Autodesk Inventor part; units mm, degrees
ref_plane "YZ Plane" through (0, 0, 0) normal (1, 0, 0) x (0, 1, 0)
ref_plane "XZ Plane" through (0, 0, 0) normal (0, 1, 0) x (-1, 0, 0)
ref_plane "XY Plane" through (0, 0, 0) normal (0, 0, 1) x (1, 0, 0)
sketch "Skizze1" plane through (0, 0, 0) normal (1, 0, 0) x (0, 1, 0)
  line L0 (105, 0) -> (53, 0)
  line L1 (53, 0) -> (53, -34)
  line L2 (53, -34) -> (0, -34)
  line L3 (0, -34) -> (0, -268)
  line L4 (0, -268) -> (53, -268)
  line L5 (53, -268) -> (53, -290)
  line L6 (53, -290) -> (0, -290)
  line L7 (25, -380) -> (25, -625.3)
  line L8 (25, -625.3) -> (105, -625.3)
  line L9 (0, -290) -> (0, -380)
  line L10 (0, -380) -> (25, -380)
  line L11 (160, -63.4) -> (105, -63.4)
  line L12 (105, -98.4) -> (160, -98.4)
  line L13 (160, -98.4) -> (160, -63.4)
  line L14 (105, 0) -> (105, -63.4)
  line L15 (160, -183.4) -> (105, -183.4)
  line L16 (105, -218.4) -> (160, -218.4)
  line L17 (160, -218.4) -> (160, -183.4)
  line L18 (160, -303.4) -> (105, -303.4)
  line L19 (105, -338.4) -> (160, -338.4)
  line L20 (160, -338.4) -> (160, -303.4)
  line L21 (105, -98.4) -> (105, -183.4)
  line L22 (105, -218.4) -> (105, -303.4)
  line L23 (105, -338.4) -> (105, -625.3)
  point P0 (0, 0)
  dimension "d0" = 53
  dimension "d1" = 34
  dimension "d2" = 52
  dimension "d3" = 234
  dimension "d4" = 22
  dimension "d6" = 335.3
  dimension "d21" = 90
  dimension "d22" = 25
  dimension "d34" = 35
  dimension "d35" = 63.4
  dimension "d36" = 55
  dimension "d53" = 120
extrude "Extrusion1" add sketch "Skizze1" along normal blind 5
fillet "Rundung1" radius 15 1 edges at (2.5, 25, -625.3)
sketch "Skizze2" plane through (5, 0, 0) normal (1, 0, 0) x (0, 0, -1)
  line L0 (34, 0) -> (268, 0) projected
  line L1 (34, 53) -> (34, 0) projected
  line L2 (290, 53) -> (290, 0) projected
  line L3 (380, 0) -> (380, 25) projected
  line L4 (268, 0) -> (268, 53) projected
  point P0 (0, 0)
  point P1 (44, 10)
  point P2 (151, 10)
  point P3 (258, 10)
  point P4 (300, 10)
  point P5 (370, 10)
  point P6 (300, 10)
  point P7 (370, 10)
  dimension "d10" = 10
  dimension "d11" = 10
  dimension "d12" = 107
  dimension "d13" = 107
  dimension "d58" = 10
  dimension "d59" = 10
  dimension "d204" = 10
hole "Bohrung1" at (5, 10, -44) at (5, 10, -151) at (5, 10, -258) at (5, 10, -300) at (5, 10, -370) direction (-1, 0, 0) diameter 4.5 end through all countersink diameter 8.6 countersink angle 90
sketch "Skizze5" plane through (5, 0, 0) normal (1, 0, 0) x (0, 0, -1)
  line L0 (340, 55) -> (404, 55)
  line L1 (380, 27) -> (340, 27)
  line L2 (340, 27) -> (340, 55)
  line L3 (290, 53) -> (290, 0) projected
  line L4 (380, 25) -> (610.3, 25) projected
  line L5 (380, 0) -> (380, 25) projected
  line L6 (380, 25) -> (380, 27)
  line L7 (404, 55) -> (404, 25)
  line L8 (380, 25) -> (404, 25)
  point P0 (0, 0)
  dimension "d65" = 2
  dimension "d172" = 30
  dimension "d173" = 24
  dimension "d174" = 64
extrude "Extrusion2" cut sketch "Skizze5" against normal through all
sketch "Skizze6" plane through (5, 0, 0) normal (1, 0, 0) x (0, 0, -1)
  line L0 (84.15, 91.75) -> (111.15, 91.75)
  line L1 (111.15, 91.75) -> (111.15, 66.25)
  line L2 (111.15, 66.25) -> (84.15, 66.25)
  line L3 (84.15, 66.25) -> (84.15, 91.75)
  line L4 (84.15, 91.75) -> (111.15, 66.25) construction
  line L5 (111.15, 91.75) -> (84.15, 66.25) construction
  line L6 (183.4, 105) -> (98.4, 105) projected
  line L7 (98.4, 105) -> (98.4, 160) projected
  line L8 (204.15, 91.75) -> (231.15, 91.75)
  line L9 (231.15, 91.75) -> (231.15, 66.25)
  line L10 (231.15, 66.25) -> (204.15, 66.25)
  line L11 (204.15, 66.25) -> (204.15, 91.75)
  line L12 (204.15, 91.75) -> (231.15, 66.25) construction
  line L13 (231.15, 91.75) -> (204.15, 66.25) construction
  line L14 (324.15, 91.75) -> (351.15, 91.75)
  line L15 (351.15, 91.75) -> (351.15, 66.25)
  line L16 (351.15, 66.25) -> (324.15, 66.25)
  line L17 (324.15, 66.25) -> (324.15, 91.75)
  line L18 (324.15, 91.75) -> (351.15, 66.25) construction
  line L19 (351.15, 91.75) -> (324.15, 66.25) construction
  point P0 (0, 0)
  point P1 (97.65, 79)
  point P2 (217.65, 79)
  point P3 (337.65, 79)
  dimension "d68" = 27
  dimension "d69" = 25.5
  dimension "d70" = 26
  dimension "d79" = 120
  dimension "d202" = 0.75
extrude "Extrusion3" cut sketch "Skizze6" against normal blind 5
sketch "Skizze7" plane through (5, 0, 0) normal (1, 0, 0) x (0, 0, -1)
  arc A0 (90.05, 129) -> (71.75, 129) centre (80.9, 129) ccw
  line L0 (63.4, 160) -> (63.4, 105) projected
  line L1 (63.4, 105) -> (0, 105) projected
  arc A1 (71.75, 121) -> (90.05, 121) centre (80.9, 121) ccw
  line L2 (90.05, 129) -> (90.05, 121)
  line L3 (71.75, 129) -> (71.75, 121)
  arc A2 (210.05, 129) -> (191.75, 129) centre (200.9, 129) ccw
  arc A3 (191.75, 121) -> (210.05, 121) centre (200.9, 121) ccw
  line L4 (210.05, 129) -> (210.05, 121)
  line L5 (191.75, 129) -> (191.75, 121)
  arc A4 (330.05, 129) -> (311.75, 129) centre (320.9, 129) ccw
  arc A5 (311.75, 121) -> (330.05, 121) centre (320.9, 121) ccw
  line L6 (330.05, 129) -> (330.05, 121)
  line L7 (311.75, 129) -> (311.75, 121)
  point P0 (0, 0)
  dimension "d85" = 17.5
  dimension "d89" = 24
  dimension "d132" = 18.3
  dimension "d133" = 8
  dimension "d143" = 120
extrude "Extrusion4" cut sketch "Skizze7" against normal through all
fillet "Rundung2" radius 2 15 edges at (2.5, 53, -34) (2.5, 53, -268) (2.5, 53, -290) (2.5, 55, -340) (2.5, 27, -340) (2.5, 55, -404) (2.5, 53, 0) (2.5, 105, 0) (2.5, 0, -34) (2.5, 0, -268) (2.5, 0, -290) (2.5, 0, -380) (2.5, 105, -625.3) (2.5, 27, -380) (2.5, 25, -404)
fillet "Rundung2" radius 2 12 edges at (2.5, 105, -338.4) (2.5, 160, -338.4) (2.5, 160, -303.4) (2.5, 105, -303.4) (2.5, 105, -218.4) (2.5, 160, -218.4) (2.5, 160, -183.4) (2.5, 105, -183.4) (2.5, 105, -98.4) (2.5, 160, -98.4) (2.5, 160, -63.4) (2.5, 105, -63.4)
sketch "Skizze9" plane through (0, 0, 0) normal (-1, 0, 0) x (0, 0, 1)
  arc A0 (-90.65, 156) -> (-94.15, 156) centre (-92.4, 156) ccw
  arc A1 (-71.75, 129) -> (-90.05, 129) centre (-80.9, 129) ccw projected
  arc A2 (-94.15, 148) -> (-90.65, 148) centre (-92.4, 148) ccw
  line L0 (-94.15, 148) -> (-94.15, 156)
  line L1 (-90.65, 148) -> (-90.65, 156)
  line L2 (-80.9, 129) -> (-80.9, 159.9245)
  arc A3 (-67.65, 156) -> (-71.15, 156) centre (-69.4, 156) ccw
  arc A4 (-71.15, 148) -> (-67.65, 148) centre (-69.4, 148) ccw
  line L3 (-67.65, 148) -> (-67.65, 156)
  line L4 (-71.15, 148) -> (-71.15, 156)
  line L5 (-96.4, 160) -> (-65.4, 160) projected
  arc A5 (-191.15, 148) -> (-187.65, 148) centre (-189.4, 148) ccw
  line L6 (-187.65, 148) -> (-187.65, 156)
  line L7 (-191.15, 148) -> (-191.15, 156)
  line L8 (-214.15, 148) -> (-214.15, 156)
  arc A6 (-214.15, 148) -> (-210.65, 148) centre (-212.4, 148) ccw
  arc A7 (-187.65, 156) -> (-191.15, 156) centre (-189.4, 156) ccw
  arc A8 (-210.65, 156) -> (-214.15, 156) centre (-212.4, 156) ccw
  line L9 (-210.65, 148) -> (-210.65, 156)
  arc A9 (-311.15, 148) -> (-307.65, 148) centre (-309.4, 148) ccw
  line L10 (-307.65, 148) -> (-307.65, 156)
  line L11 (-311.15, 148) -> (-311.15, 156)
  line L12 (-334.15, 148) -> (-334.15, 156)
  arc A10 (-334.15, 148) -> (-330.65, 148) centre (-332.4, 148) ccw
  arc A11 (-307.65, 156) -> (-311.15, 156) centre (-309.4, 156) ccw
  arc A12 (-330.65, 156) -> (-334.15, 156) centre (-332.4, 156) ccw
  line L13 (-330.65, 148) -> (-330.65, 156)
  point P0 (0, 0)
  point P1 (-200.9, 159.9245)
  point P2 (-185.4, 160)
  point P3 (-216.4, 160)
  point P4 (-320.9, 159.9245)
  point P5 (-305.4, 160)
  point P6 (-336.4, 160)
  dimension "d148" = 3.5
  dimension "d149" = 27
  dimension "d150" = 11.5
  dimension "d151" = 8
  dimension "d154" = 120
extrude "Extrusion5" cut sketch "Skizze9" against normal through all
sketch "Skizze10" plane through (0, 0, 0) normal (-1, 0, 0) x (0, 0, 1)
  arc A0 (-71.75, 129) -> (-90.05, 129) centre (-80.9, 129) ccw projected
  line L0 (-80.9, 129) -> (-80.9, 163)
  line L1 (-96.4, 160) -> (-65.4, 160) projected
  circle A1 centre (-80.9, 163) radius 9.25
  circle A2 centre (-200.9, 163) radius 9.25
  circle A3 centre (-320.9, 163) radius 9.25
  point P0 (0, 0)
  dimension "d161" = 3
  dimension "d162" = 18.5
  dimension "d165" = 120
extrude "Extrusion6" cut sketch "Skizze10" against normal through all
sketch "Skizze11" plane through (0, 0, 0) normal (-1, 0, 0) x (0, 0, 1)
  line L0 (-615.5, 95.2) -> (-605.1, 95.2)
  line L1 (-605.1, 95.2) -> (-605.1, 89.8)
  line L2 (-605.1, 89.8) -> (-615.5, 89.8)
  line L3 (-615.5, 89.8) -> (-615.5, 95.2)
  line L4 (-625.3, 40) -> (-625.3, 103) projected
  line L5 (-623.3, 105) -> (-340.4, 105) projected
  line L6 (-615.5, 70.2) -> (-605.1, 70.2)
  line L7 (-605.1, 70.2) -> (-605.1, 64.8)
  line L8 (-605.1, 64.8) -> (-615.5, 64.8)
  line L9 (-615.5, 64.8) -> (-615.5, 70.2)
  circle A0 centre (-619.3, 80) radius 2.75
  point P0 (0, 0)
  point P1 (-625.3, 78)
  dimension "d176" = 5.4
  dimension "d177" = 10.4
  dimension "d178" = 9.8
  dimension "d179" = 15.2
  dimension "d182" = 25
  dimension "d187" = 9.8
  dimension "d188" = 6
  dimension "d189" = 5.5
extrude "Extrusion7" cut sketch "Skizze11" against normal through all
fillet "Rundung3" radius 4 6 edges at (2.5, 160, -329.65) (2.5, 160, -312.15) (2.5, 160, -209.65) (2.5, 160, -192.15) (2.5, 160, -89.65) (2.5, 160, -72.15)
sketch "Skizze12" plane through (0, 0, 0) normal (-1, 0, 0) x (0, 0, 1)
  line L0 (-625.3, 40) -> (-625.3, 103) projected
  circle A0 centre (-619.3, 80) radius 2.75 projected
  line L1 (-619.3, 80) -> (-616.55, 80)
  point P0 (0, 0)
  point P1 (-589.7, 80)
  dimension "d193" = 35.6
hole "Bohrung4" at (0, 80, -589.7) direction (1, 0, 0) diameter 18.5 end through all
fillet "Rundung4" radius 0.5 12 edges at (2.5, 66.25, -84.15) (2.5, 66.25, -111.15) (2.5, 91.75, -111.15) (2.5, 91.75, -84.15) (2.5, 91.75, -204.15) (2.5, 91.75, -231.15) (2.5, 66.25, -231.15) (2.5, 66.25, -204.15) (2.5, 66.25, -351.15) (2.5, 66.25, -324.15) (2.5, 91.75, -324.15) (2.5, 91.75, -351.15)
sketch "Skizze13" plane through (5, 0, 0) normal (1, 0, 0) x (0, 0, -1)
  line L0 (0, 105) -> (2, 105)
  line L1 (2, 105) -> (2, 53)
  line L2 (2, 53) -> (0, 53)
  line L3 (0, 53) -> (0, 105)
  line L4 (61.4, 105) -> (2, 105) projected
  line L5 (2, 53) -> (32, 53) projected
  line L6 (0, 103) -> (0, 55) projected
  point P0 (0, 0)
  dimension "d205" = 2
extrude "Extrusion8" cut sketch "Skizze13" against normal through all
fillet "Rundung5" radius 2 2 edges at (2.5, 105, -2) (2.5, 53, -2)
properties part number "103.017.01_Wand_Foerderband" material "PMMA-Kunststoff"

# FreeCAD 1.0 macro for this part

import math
import FreeCAD as App
import Part
import Sketcher
from FreeCAD import Vector
Q = App.Units.Quantity


def edges_at(feature, points):
    """Names of the edges that pass closest to the given points."""
    edges = feature.Shape.Edges
    near = lambda p: min(range(len(edges)), key=lambda i: edges[i].distToShape(Part.Vertex(*p))[0])
    return sorted({f"Edge{near(p) + 1}" for p in points})


def add_polygon(sketch, points):
    """Adds a closed chain of lines whose ends are joined by coincident constraints."""
    first, n = sketch.GeometryCount, len(points)
    for a, b in zip(points, points[1:] + points[:1]):
        sketch.addGeometry(Part.LineSegment(App.Vector(*a, 0), App.Vector(*b, 0)), False)
    for i in range(n):
        sketch.addConstraint(Sketcher.Constraint("Coincident", first + i, 2, first + (i + 1) % n, 1))

doc = App.newDocument("Part")
body = doc.addObject("PartDesign::Body", "Body")

sketch1 = body.newObject("Sketcher::SketchObject", "Sketch")
sketch1.AttachmentSupport = (doc.getObject("YZ_Plane"), [""])
sketch1.MapMode = "FlatFace"
add_polygon(sketch1, [(105, -63), (105, 0), (53, 0), (53, -34), (0, -34), (0, -268), (53, -268), (53, -290), (0, -290), (0, -380), (25, -380), (25, -625), (105, -625), (105, -338), (160, -338), (160, -303), (105, -303), (105, -218), (160, -218), (160, -183), (105, -183), (105, -98), (160, -98), (160, -63)])
sketch1.addConstraint(Sketcher.Constraint("Vertical", 0))
sketch1.addConstraint(Sketcher.Constraint("Horizontal", 1))
sketch1.addConstraint(Sketcher.Constraint("Vertical", 2))
sketch1.addConstraint(Sketcher.Constraint("Horizontal", 3))
sketch1.addConstraint(Sketcher.Constraint("Vertical", 4))
sketch1.addConstraint(Sketcher.Constraint("Horizontal", 5))
sketch1.addConstraint(Sketcher.Constraint("Vertical", 6))
sketch1.addConstraint(Sketcher.Constraint("Horizontal", 7))
sketch1.addConstraint(Sketcher.Constraint("Vertical", 8))
sketch1.addConstraint(Sketcher.Constraint("Horizontal", 9))
sketch1.addConstraint(Sketcher.Constraint("Vertical", 10))
sketch1.addConstraint(Sketcher.Constraint("Horizontal", 11))
sketch1.addConstraint(Sketcher.Constraint("Vertical", 12))
sketch1.addConstraint(Sketcher.Constraint("Horizontal", 13))
sketch1.addConstraint(Sketcher.Constraint("Vertical", 14))
sketch1.addConstraint(Sketcher.Constraint("Horizontal", 15))
sketch1.addConstraint(Sketcher.Constraint("Vertical", 16))
sketch1.addConstraint(Sketcher.Constraint("Horizontal", 17))
sketch1.addConstraint(Sketcher.Constraint("Vertical", 18))
sketch1.addConstraint(Sketcher.Constraint("Horizontal", 19))
sketch1.addConstraint(Sketcher.Constraint("Vertical", 20))
sketch1.addConstraint(Sketcher.Constraint("Horizontal", 21))
sketch1.addConstraint(Sketcher.Constraint("Vertical", 22))
sketch1.addConstraint(Sketcher.Constraint("Horizontal", 23))
sketch1.addConstraint(Sketcher.Constraint("PointOnObject", 0, 2, -1))
sketch1.addConstraint(Sketcher.Constraint("PointOnObject", 3, 2, -2))
sketch1.addConstraint(Sketcher.Constraint("PointOnObject", 7, 2, -2))
sketch1.addConstraint(Sketcher.Constraint("Vertical", 2, 2, 5, 2))
sketch1.addConstraint(Sketcher.Constraint("Vertical", 0, 2, 11, 2))
sketch1.addConstraint(Sketcher.Constraint("Vertical", 12, 2, 15, 2))
sketch1.addConstraint(Sketcher.Constraint("Vertical", 14, 2, 17, 2))
sketch1.addConstraint(Sketcher.Constraint("Vertical", 16, 2, 19, 2))
sketch1.addConstraint(Sketcher.Constraint("Vertical", 18, 2, 21, 2))
sketch1.addConstraint(Sketcher.Constraint("Equal", 14, 18))
sketch1.addConstraint(Sketcher.Constraint("Equal", 16, 20))
sketch1.addConstraint(Sketcher.Constraint("Equal", 18, 22))
sketch1.addConstraint(Sketcher.Constraint("DistanceX", 1, 2, 1, 1, Q("52 mm")))
sketch1.addConstraint(Sketcher.Constraint("DistanceX", 3, 2, 3, 1, Q("53 mm")))
sketch1.addConstraint(Sketcher.Constraint("DistanceX", 9, 1, 9, 2, Q("25 mm")))
sketch1.addConstraint(Sketcher.Constraint("DistanceX", 13, 1, 13, 2, Q("55 mm")))
sketch1.addConstraint(Sketcher.Constraint("DistanceY", 2, 2, 2, 1, Q("34 mm")))
sketch1.addConstraint(Sketcher.Constraint("DistanceY", 4, 2, 4, 1, Q("234 mm")))
sketch1.addConstraint(Sketcher.Constraint("DistanceY", 6, 2, 6, 1, Q("22 mm")))
sketch1.addConstraint(Sketcher.Constraint("DistanceY", 8, 2, 8, 1, Q("90 mm")))
sketch1.addConstraint(Sketcher.Constraint("DistanceY", 14, 1, 14, 2, Q("35 mm")))
sketch1.addConstraint(Sketcher.Constraint("DistanceY", 0, 1, 0, 2, Q("63.4 mm")))
sketch1.addConstraint(Sketcher.Constraint("DistanceY", 13, 2, 17, 2, Q("120 mm")))
sketch1.addConstraint(Sketcher.Constraint("DistanceY", 10, 2, 7, 2, Q("335.3 mm")))
pad1 = body.newObject("PartDesign::Pad", "Pad")
pad1.Profile = sketch1
pad1.Length = 5
doc.recompute()

fillet = body.newObject("PartDesign::Fillet", "Fillet")
fillet.Base = (pad1, edges_at(pad1, [(2.5, 25, -625.3)]))
fillet.Radius = 15

sketch2 = body.newObject("Sketcher::SketchObject", "Sketch001")
sketch2.AttachmentSupport = (doc.getObject("YZ_Plane"), [""])
sketch2.MapMode = "FlatFace"
sketch2.AttachmentOffset = App.Placement(Vector(0, 0, 5), App.Rotation())
sketch2.addGeometry(Part.Circle(Vector(10, -44, 0), Vector(0, 0, 1), 2.2), False)
sketch2.addGeometry(Part.Circle(Vector(10, -151, 0), Vector(0, 0, 1), 2.2), False)
sketch2.addGeometry(Part.Circle(Vector(10, -258, 0), Vector(0, 0, 1), 2.2), False)
sketch2.addGeometry(Part.Circle(Vector(10, -300, 0), Vector(0, 0, 1), 2.2), False)
sketch2.addGeometry(Part.Circle(Vector(10, -370, 0), Vector(0, 0, 1), 2.2), False)
sketch2.addConstraint(Sketcher.Constraint("Equal", 0, 1))
sketch2.addConstraint(Sketcher.Constraint("Equal", 1, 2))
sketch2.addConstraint(Sketcher.Constraint("Equal", 2, 3))
sketch2.addConstraint(Sketcher.Constraint("Equal", 3, 4))
sketch2.addConstraint(Sketcher.Constraint("Vertical", 0, 3, 1, 3))
sketch2.addConstraint(Sketcher.Constraint("Vertical", 1, 3, 2, 3))
sketch2.addConstraint(Sketcher.Constraint("Vertical", 2, 3, 3, 3))
sketch2.addConstraint(Sketcher.Constraint("Vertical", 3, 3, 4, 3))
sketch2.addConstraint(Sketcher.Constraint("Diameter", 0, Q("4.5 mm")))
sketch2.addConstraint(Sketcher.Constraint("DistanceX", -1, 1, 0, 3, Q("10 mm")))
sketch2.addConstraint(Sketcher.Constraint("DistanceY", 0, 3, -1, 1, Q("44 mm")))
sketch2.addConstraint(Sketcher.Constraint("DistanceY", 1, 3, -1, 1, Q("151 mm")))
sketch2.addConstraint(Sketcher.Constraint("DistanceY", 2, 3, -1, 1, Q("258 mm")))
sketch2.addConstraint(Sketcher.Constraint("DistanceY", 3, 3, -1, 1, Q("300 mm")))
sketch2.addConstraint(Sketcher.Constraint("DistanceY", 4, 3, -1, 1, Q("370 mm")))
doc.recompute()
hole = body.newObject("PartDesign::Hole", "Hole")
hole.Profile = sketch2
hole.ThreadType = "None"
hole.Diameter = 4.5
hole.DepthType = "ThroughAll"
hole.HoleCutType = "Countersink"
hole.HoleCutDiameter = 8.6
hole.HoleCutCountersinkAngle = 90

sketch3 = body.newObject("Sketcher::SketchObject", "Sketch002")
sketch3.AttachmentSupport = (doc.getObject("YZ_Plane"), [""])
sketch3.MapMode = "FlatFace"
sketch3.AttachmentOffset = App.Placement(Vector(0, 0, 5), App.Rotation())
add_polygon(sketch3, [(55, -404), (55, -340), (27, -340), (27, -380), (25, -380), (25, -404)])
sketch3.addConstraint(Sketcher.Constraint("Vertical", 0))
sketch3.addConstraint(Sketcher.Constraint("Horizontal", 1))
sketch3.addConstraint(Sketcher.Constraint("Vertical", 2))
sketch3.addConstraint(Sketcher.Constraint("Horizontal", 3))
sketch3.addConstraint(Sketcher.Constraint("Vertical", 4))
sketch3.addConstraint(Sketcher.Constraint("Horizontal", 5))
sketch3.addConstraint(Sketcher.Constraint("DistanceX", 3, 2, 3, 1, Q("2 mm")))
sketch3.addConstraint(Sketcher.Constraint("DistanceX", 5, 1, 5, 2, Q("30 mm")))
sketch3.addConstraint(Sketcher.Constraint("DistanceY", 0, 1, 0, 2, Q("64 mm")))
sketch3.addConstraint(Sketcher.Constraint("DistanceY", 4, 2, 4, 1, Q("24 mm")))
sketch3.addConstraint(Sketcher.Constraint("DistanceX", -1, 1, 0, 2, Q("55 mm")))
sketch3.addConstraint(Sketcher.Constraint("DistanceY", 0, 2, -1, 1, Q("340 mm")))
pocket1 = body.newObject("PartDesign::Pocket", "Pocket")
pocket1.Profile = sketch3
pocket1.Type = "ThroughAll"

sketch4 = body.newObject("Sketcher::SketchObject", "Sketch003")
sketch4.AttachmentSupport = (doc.getObject("YZ_Plane"), [""])
sketch4.MapMode = "FlatFace"
sketch4.AttachmentOffset = App.Placement(Vector(0, 0, 5), App.Rotation())
add_polygon(sketch4, [(92, -111), (92, -84), (66, -84), (66, -111)])
add_polygon(sketch4, [(92, -231), (92, -204), (66, -204), (66, -231)])
add_polygon(sketch4, [(92, -351), (92, -324), (66, -324), (66, -351)])
sketch4.addConstraint(Sketcher.Constraint("Vertical", 0))
sketch4.addConstraint(Sketcher.Constraint("Horizontal", 1))
sketch4.addConstraint(Sketcher.Constraint("Vertical", 2))
sketch4.addConstraint(Sketcher.Constraint("Horizontal", 3))
sketch4.addConstraint(Sketcher.Constraint("Vertical", 4))
sketch4.addConstraint(Sketcher.Constraint("Horizontal", 5))
sketch4.addConstraint(Sketcher.Constraint("Vertical", 6))
sketch4.addConstraint(Sketcher.Constraint("Horizontal", 7))
sketch4.addConstraint(Sketcher.Constraint("Vertical", 8))
sketch4.addConstraint(Sketcher.Constraint("Horizontal", 9))
sketch4.addConstraint(Sketcher.Constraint("Vertical", 10))
sketch4.addConstraint(Sketcher.Constraint("Horizontal", 11))
sketch4.addConstraint(Sketcher.Constraint("Vertical", 3, 2, 4, 2))
sketch4.addConstraint(Sketcher.Constraint("Vertical", 2, 2, 5, 2))
sketch4.addConstraint(Sketcher.Constraint("Vertical", 7, 2, 8, 2))
sketch4.addConstraint(Sketcher.Constraint("Vertical", 6, 2, 9, 2))
sketch4.addConstraint(Sketcher.Constraint("Equal", 2, 4))
sketch4.addConstraint(Sketcher.Constraint("Equal", 6, 8))
sketch4.addConstraint(Sketcher.Constraint("DistanceY", 0, 1, 0, 2, Q("27 mm")))
sketch4.addConstraint(Sketcher.Constraint("DistanceX", 1, 2, 1, 1, Q("25.5 mm")))
sketch4.addConstraint(Sketcher.Constraint("DistanceY", 4, 2, 0, 2, Q("120 mm")))
sketch4.addConstraint(Sketcher.Constraint("DistanceY", 8, 2, 4, 2, Q("120 mm")))
sketch4.addConstraint(Sketcher.Constraint("DistanceX", -1, 1, 0, 2, Q("91.75 mm")))
sketch4.addConstraint(Sketcher.Constraint("DistanceY", 0, 2, -1, 1, Q("84.15 mm")))
pocket2 = body.newObject("PartDesign::Pocket", "Pocket001")
pocket2.Profile = sketch4
pocket2.Length = 5

sketch5 = body.newObject("Sketcher::SketchObject", "Sketch004")
sketch5.AttachmentSupport = (doc.getObject("YZ_Plane"), [""])
sketch5.MapMode = "FlatFace"
sketch5.AttachmentOffset = App.Placement(Vector(0, 0, 5), App.Rotation())
sketch5.addGeometry(Part.LineSegment(Vector(121, -90, 0), Vector(129, -90, 0)), False)
sketch5.addGeometry(Part.ArcOfCircle(Part.Circle(Vector(129, -81, 0), Vector(0, 0, 1), 9), math.radians(-90), math.radians(90)), False)
sketch5.addGeometry(Part.LineSegment(Vector(129, -72, 0), Vector(121, -72, 0)), False)
sketch5.addGeometry(Part.ArcOfCircle(Part.Circle(Vector(121, -81, 0), Vector(0, 0, 1), 9), math.radians(90), math.radians(270)), False)
sketch5.addGeometry(Part.LineSegment(Vector(121, -210, 0), Vector(129, -210, 0)), False)
sketch5.addGeometry(Part.ArcOfCircle(Part.Circle(Vector(129, -201, 0), Vector(0, 0, 1), 9), math.radians(-90), math.radians(90)), False)
sketch5.addGeometry(Part.LineSegment(Vector(129, -192, 0), Vector(121, -192, 0)), False)
sketch5.addGeometry(Part.ArcOfCircle(Part.Circle(Vector(121, -201, 0), Vector(0, 0, 1), 9), math.radians(90), math.radians(270)), False)
sketch5.addGeometry(Part.LineSegment(Vector(121, -330, 0), Vector(129, -330, 0)), False)
sketch5.addGeometry(Part.ArcOfCircle(Part.Circle(Vector(129, -321, 0), Vector(0, 0, 1), 9), math.radians(-90), math.radians(90)), False)
sketch5.addGeometry(Part.LineSegment(Vector(129, -312, 0), Vector(121, -312, 0)), False)
sketch5.addGeometry(Part.ArcOfCircle(Part.Circle(Vector(121, -321, 0), Vector(0, 0, 1), 9), math.radians(90), math.radians(270)), False)
sketch5.addConstraint(Sketcher.Constraint("Tangent", 0, 2, 1, 1))
sketch5.addConstraint(Sketcher.Constraint("Tangent", 1, 2, 2, 1))
sketch5.addConstraint(Sketcher.Constraint("Tangent", 2, 2, 3, 1))
sketch5.addConstraint(Sketcher.Constraint("Tangent", 3, 2, 0, 1))
sketch5.addConstraint(Sketcher.Constraint("Tangent", 4, 2, 5, 1))
sketch5.addConstraint(Sketcher.Constraint("Tangent", 5, 2, 6, 1))
sketch5.addConstraint(Sketcher.Constraint("Tangent", 6, 2, 7, 1))
sketch5.addConstraint(Sketcher.Constraint("Tangent", 7, 2, 4, 1))
sketch5.addConstraint(Sketcher.Constraint("Tangent", 8, 2, 9, 1))
sketch5.addConstraint(Sketcher.Constraint("Tangent", 9, 2, 10, 1))
sketch5.addConstraint(Sketcher.Constraint("Tangent", 10, 2, 11, 1))
sketch5.addConstraint(Sketcher.Constraint("Tangent", 11, 2, 8, 1))
sketch5.addConstraint(Sketcher.Constraint("Horizontal", 0))
sketch5.addConstraint(Sketcher.Constraint("Horizontal", 2))
sketch5.addConstraint(Sketcher.Constraint("Horizontal", 4))
sketch5.addConstraint(Sketcher.Constraint("Horizontal", 6))
sketch5.addConstraint(Sketcher.Constraint("Horizontal", 8))
sketch5.addConstraint(Sketcher.Constraint("Horizontal", 10))
sketch5.addConstraint(Sketcher.Constraint("Equal", 3, 5))
sketch5.addConstraint(Sketcher.Constraint("Equal", 7, 9))
sketch5.addConstraint(Sketcher.Constraint("Vertical", 1, 3, 5, 3))
sketch5.addConstraint(Sketcher.Constraint("Vertical", 3, 3, 7, 3))
sketch5.addConstraint(Sketcher.Constraint("Vertical", 5, 3, 9, 3))
sketch5.addConstraint(Sketcher.Constraint("Vertical", 7, 3, 11, 3))
sketch5.addConstraint(Sketcher.Constraint("DistanceX", 0, 1, 0, 2, Q("8 mm")))
sketch5.addConstraint(Sketcher.Constraint("Radius", 1, Q("9.15 mm")))
sketch5.addConstraint(Sketcher.Constraint("DistanceY", 5, 3, 1, 3, Q("120 mm")))
sketch5.addConstraint(Sketcher.Constraint("DistanceY", 9, 3, 5, 3, Q("120 mm")))
sketch5.addConstraint(Sketcher.Constraint("DistanceX", -1, 1, 1, 3, Q("129 mm")))
sketch5.addConstraint(Sketcher.Constraint("DistanceY", 1, 3, -1, 1, Q("80.9 mm")))
pocket3 = body.newObject("PartDesign::Pocket", "Pocket002")
pocket3.Profile = sketch5
pocket3.Type = "ThroughAll"
doc.recompute()

fillet2 = body.newObject("PartDesign::Fillet", "Fillet001")
fillet2.Base = (pocket3, edges_at(pocket3, [
    (2.5, 53, -34),
    (2.5, 53, -268),
    (2.5, 53, -290),
    (2.5, 55, -340),
    (2.5, 27, -340),
    (2.5, 55, -404),
    (2.5, 53, 0),
    (2.5, 105, 0),
    (2.5, 0, -34),
    (2.5, 0, -268),
    (2.5, 0, -290),
    (2.5, 0, -380),
    (2.5, 105, -625.3),
    (2.5, 27, -380),
    (2.5, 25, -404),
]))
fillet2.Radius = 2
doc.recompute()

fillet3 = body.newObject("PartDesign::Fillet", "Fillet002")
fillet3.Base = (fillet2, edges_at(fillet2, [
    (2.5, 105, -338.4),
    (2.5, 160, -338.4),
    (2.5, 160, -303.4),
    (2.5, 105, -303.4),
    (2.5, 105, -218.4),
    (2.5, 160, -218.4),
    (2.5, 160, -183.4),
    (2.5, 105, -183.4),
    (2.5, 105, -98.4),
    (2.5, 160, -98.4),
    (2.5, 160, -63.4),
    (2.5, 105, -63.4),
]))
fillet3.Radius = 2

sketch6 = body.newObject("Sketcher::SketchObject", "Sketch005")
sketch6.AttachmentSupport = (doc.getObject("YZ_Plane"), [""])
sketch6.MapMode = "FlatFace"
sketch6.addGeometry(Part.LineSegment(Vector(148, -90.7, 0), Vector(156, -90.7, 0)), False)
sketch6.addGeometry(Part.ArcOfCircle(Part.Circle(Vector(156, -92.4, 0), Vector(0, 0, 1), 1.8), math.radians(-90), math.radians(90)), False)
sketch6.addGeometry(Part.LineSegment(Vector(156, -94.2, 0), Vector(148, -94.2, 0)), False)
sketch6.addGeometry(Part.ArcOfCircle(Part.Circle(Vector(148, -92.4, 0), Vector(0, 0, 1), 1.8), math.radians(90), math.radians(270)), False)
sketch6.addGeometry(Part.LineSegment(Vector(148, -67.7, 0), Vector(156, -67.7, 0)), False)
sketch6.addGeometry(Part.ArcOfCircle(Part.Circle(Vector(156, -69.4, 0), Vector(0, 0, 1), 1.8), math.radians(-90), math.radians(90)), False)
sketch6.addGeometry(Part.LineSegment(Vector(156, -71.2, 0), Vector(148, -71.2, 0)), False)
sketch6.addGeometry(Part.ArcOfCircle(Part.Circle(Vector(148, -69.4, 0), Vector(0, 0, 1), 1.8), math.radians(90), math.radians(270)), False)
sketch6.addGeometry(Part.LineSegment(Vector(156, -191.2, 0), Vector(148, -191.2, 0)), False)
sketch6.addGeometry(Part.ArcOfCircle(Part.Circle(Vector(148, -189.4, 0), Vector(0, 0, 1), 1.8), math.radians(90), math.radians(270)), False)
sketch6.addGeometry(Part.LineSegment(Vector(148, -187.7, 0), Vector(156, -187.7, 0)), False)
sketch6.addGeometry(Part.ArcOfCircle(Part.Circle(Vector(156, -189.4, 0), Vector(0, 0, 1), 1.8), math.radians(-90), math.radians(90)), False)
sketch6.addGeometry(Part.LineSegment(Vector(156, -214.2, 0), Vector(148, -214.2, 0)), False)
sketch6.addGeometry(Part.ArcOfCircle(Part.Circle(Vector(148, -212.4, 0), Vector(0, 0, 1), 1.8), math.radians(90), math.radians(270)), False)
sketch6.addGeometry(Part.LineSegment(Vector(148, -210.7, 0), Vector(156, -210.7, 0)), False)
sketch6.addGeometry(Part.ArcOfCircle(Part.Circle(Vector(156, -212.4, 0), Vector(0, 0, 1), 1.8), math.radians(-90), math.radians(90)), False)
sketch6.addGeometry(Part.LineSegment(Vector(156, -311.1, 0), Vector(148, -311.1, 0)), False)
sketch6.addGeometry(Part.ArcOfCircle(Part.Circle(Vector(148, -309.4, 0), Vector(0, 0, 1), 1.8), math.radians(90), math.radians(270)), False)
sketch6.addGeometry(Part.LineSegment(Vector(148, -307.6, 0), Vector(156, -307.6, 0)), False)
sketch6.addGeometry(Part.ArcOfCircle(Part.Circle(Vector(156, -309.4, 0), Vector(0, 0, 1), 1.8), math.radians(-90), math.radians(90)), False)
sketch6.addGeometry(Part.LineSegment(Vector(156, -334.1, 0), Vector(148, -334.1, 0)), False)
sketch6.addGeometry(Part.ArcOfCircle(Part.Circle(Vector(148, -332.4, 0), Vector(0, 0, 1), 1.8), math.radians(90), math.radians(270)), False)
sketch6.addGeometry(Part.LineSegment(Vector(148, -330.6, 0), Vector(156, -330.6, 0)), False)
sketch6.addGeometry(Part.ArcOfCircle(Part.Circle(Vector(156, -332.4, 0), Vector(0, 0, 1), 1.8), math.radians(-90), math.radians(90)), False)
sketch6.addConstraint(Sketcher.Constraint("Tangent", 0, 2, 1, 2))
sketch6.addConstraint(Sketcher.Constraint("Tangent", 1, 1, 2, 1))
sketch6.addConstraint(Sketcher.Constraint("Tangent", 2, 2, 3, 2))
sketch6.addConstraint(Sketcher.Constraint("Tangent", 3, 1, 0, 1))
sketch6.addConstraint(Sketcher.Constraint("Tangent", 4, 2, 5, 2))
sketch6.addConstraint(Sketcher.Constraint("Tangent", 5, 1, 6, 1))
sketch6.addConstraint(Sketcher.Constraint("Tangent", 6, 2, 7, 2))
sketch6.addConstraint(Sketcher.Constraint("Tangent", 7, 1, 4, 1))
sketch6.addConstraint(Sketcher.Constraint("Tangent", 8, 2, 9, 2))
sketch6.addConstraint(Sketcher.Constraint("Tangent", 9, 1, 10, 1))
sketch6.addConstraint(Sketcher.Constraint("Tangent", 10, 2, 11, 2))
sketch6.addConstraint(Sketcher.Constraint("Tangent", 11, 1, 8, 1))
sketch6.addConstraint(Sketcher.Constraint("Tangent", 12, 2, 13, 2))
sketch6.addConstraint(Sketcher.Constraint("Tangent", 13, 1, 14, 1))
sketch6.addConstraint(Sketcher.Constraint("Tangent", 14, 2, 15, 2))
sketch6.addConstraint(Sketcher.Constraint("Tangent", 15, 1, 12, 1))
sketch6.addConstraint(Sketcher.Constraint("Tangent", 16, 2, 17, 2))
sketch6.addConstraint(Sketcher.Constraint("Tangent", 17, 1, 18, 1))
sketch6.addConstraint(Sketcher.Constraint("Tangent", 18, 2, 19, 2))
sketch6.addConstraint(Sketcher.Constraint("Tangent", 19, 1, 16, 1))
sketch6.addConstraint(Sketcher.Constraint("Tangent", 20, 2, 21, 2))
sketch6.addConstraint(Sketcher.Constraint("Tangent", 21, 1, 22, 1))
sketch6.addConstraint(Sketcher.Constraint("Tangent", 22, 2, 23, 2))
sketch6.addConstraint(Sketcher.Constraint("Tangent", 23, 1, 20, 1))
sketch6.addConstraint(Sketcher.Constraint("Horizontal", 0))
sketch6.addConstraint(Sketcher.Constraint("Horizontal", 2))
sketch6.addConstraint(Sketcher.Constraint("Horizontal", 4))
sketch6.addConstraint(Sketcher.Constraint("Horizontal", 6))
sketch6.addConstraint(Sketcher.Constraint("Horizontal", 8))
sketch6.addConstraint(Sketcher.Constraint("Horizontal", 10))
sketch6.addConstraint(Sketcher.Constraint("Horizontal", 12))
sketch6.addConstraint(Sketcher.Constraint("Horizontal", 14))
sketch6.addConstraint(Sketcher.Constraint("Horizontal", 16))
sketch6.addConstraint(Sketcher.Constraint("Horizontal", 18))
sketch6.addConstraint(Sketcher.Constraint("Horizontal", 20))
sketch6.addConstraint(Sketcher.Constraint("Horizontal", 22))
sketch6.addConstraint(Sketcher.Constraint("Equal", 3, 5))
sketch6.addConstraint(Sketcher.Constraint("Equal", 7, 9))
sketch6.addConstraint(Sketcher.Constraint("Equal", 11, 13))
sketch6.addConstraint(Sketcher.Constraint("Equal", 15, 17))
sketch6.addConstraint(Sketcher.Constraint("Equal", 19, 21))
sketch6.addConstraint(Sketcher.Constraint("Vertical", 1, 3, 5, 3))
sketch6.addConstraint(Sketcher.Constraint("Vertical", 3, 3, 7, 3))
sketch6.addConstraint(Sketcher.Constraint("Vertical", 7, 3, 9, 3))
sketch6.addConstraint(Sketcher.Constraint("Vertical", 5, 3, 11, 3))
sketch6.addConstraint(Sketcher.Constraint("Vertical", 9, 3, 13, 3))
sketch6.addConstraint(Sketcher.Constraint("Vertical", 11, 3, 15, 3))
sketch6.addConstraint(Sketcher.Constraint("Vertical", 13, 3, 17, 3))
sketch6.addConstraint(Sketcher.Constraint("Vertical", 15, 3, 19, 3))
sketch6.addConstraint(Sketcher.Constraint("Vertical", 17, 3, 21, 3))
sketch6.addConstraint(Sketcher.Constraint("Vertical", 19, 3, 23, 3))
sketch6.addConstraint(Sketcher.Constraint("DistanceX", 0, 1, 0, 2, Q("8 mm")))
sketch6.addConstraint(Sketcher.Constraint("Radius", 1, Q("1.75 mm")))
sketch6.addConstraint(Sketcher.Constraint("DistanceY", 9, 3, 7, 3, Q("120 mm")))
sketch6.addConstraint(Sketcher.Constraint("DistanceY", 13, 3, 3, 3, Q("120 mm")))
sketch6.addConstraint(Sketcher.Constraint("DistanceY", 17, 3, 9, 3, Q("120 mm")))
sketch6.addConstraint(Sketcher.Constraint("DistanceY", 21, 3, 13, 3, Q("120 mm")))
sketch6.addConstraint(Sketcher.Constraint("DistanceX", -1, 1, 1, 3, Q("156 mm")))
sketch6.addConstraint(Sketcher.Constraint("DistanceY", 1, 3, 5, 3, Q("23 mm")))
sketch6.addConstraint(Sketcher.Constraint("DistanceY", 1, 3, -1, 1, Q("92.4 mm")))
pocket4 = body.newObject("PartDesign::Pocket", "Pocket003")
pocket4.Profile = sketch6
pocket4.Type = "ThroughAll"
pocket4.Reversed = True

sketch7 = body.newObject("Sketcher::SketchObject", "Sketch006")
sketch7.AttachmentSupport = (doc.getObject("YZ_Plane"), [""])
sketch7.MapMode = "FlatFace"
sketch7.addGeometry(Part.Circle(Vector(163, -81, 0), Vector(0, 0, 1), 9), False)
sketch7.addGeometry(Part.Circle(Vector(163, -201, 0), Vector(0, 0, 1), 9), False)
sketch7.addGeometry(Part.Circle(Vector(163, -321, 0), Vector(0, 0, 1), 9), False)
sketch7.addConstraint(Sketcher.Constraint("Equal", 0, 1))
sketch7.addConstraint(Sketcher.Constraint("Equal", 1, 2))
sketch7.addConstraint(Sketcher.Constraint("Vertical", 0, 3, 1, 3))
sketch7.addConstraint(Sketcher.Constraint("Vertical", 1, 3, 2, 3))
sketch7.addConstraint(Sketcher.Constraint("Diameter", 0, Q("18.5 mm")))
sketch7.addConstraint(Sketcher.Constraint("DistanceY", 1, 3, 0, 3, Q("120 mm")))
sketch7.addConstraint(Sketcher.Constraint("DistanceY", 2, 3, 1, 3, Q("120 mm")))
sketch7.addConstraint(Sketcher.Constraint("DistanceX", -1, 1, 0, 3, Q("163 mm")))
sketch7.addConstraint(Sketcher.Constraint("DistanceY", 0, 3, -1, 1, Q("80.9 mm")))
pocket5 = body.newObject("PartDesign::Pocket", "Pocket004")
pocket5.Profile = sketch7
pocket5.Type = "ThroughAll"
pocket5.Reversed = True

sketch8 = body.newObject("Sketcher::SketchObject", "Sketch007")
sketch8.AttachmentSupport = (doc.getObject("YZ_Plane"), [""])
sketch8.MapMode = "FlatFace"
add_polygon(sketch8, [(95.2, -605.1), (95.2, -615.5), (89.8, -615.5), (89.8, -605.1)])
add_polygon(sketch8, [(70.2, -605.1), (70.2, -615.5), (64.8, -615.5), (64.8, -605.1)])
sketch8.addGeometry(Part.Circle(Vector(80, -619.3, 0), Vector(0, 0, 1), 2.8), False)
sketch8.addConstraint(Sketcher.Constraint("Vertical", 0))
sketch8.addConstraint(Sketcher.Constraint("Horizontal", 1))
sketch8.addConstraint(Sketcher.Constraint("Vertical", 2))
sketch8.addConstraint(Sketcher.Constraint("Horizontal", 3))
sketch8.addConstraint(Sketcher.Constraint("Vertical", 4))
sketch8.addConstraint(Sketcher.Constraint("Horizontal", 5))
sketch8.addConstraint(Sketcher.Constraint("Vertical", 6))
sketch8.addConstraint(Sketcher.Constraint("Horizontal", 7))
sketch8.addConstraint(Sketcher.Constraint("Horizontal", 1, 2, 4, 2))
sketch8.addConstraint(Sketcher.Constraint("Horizontal", 3, 2, 6, 2))
sketch8.addConstraint(Sketcher.Constraint("Equal", 3, 5))
sketch8.addConstraint(Sketcher.Constraint("Diameter", 8, Q("5.5 mm")))
sketch8.addConstraint(Sketcher.Constraint("DistanceX", 1, 2, 1, 1, Q("5.4 mm")))
sketch8.addConstraint(Sketcher.Constraint("DistanceY", 0, 2, 0, 1, Q("10.4 mm")))
sketch8.addConstraint(Sketcher.Constraint("DistanceX", 4, 2, 0, 2, Q("25 mm")))
sketch8.addConstraint(Sketcher.Constraint("DistanceX", 8, 3, 0, 2, Q("15.2 mm")))
sketch8.addConstraint(Sketcher.Constraint("DistanceX", -1, 1, 8, 3, Q("80 mm")))
sketch8.addConstraint(Sketcher.Constraint("DistanceY", 8, 3, -1, 1, Q("619.3 mm")))
sketch8.addConstraint(Sketcher.Constraint("DistanceY", 0, 2, -1, 1, Q("615.5 mm")))
pocket6 = body.newObject("PartDesign::Pocket", "Pocket005")
pocket6.Profile = sketch8
pocket6.Type = "ThroughAll"
pocket6.Reversed = True
doc.recompute()

fillet4 = body.newObject("PartDesign::Fillet", "Fillet003")
fillet4.Base = (pocket6, edges_at(pocket6, [
    (2.5, 160, -329.65),
    (2.5, 160, -312.15),
    (2.5, 160, -209.65),
    (2.5, 160, -192.15),
    (2.5, 160, -89.65),
    (2.5, 160, -72.15),
]))
fillet4.Radius = 4

sketch9 = body.newObject("Sketcher::SketchObject", "Sketch008")
sketch9.AttachmentSupport = (doc.getObject("YZ_Plane"), [""])
sketch9.MapMode = "FlatFace"
sketch9.addGeometry(Part.Circle(Vector(80, -590, 0), Vector(0, 0, 1), 9), False)
sketch9.addConstraint(Sketcher.Constraint("Diameter", 0, Q("18.5 mm")))
sketch9.addConstraint(Sketcher.Constraint("DistanceX", -1, 1, 0, 3, Q("80 mm")))
sketch9.addConstraint(Sketcher.Constraint("DistanceY", 0, 3, -1, 1, Q("589.7 mm")))
doc.recompute()
hole2 = body.newObject("PartDesign::Hole", "Hole001")
hole2.Profile = sketch9
hole2.ThreadType = "None"
hole2.Diameter = 18.5
hole2.DepthType = "ThroughAll"
hole2.Reversed = True
doc.recompute()

fillet5 = body.newObject("PartDesign::Fillet", "Fillet004")
fillet5.Base = (hole2, edges_at(hole2, [
    (2.5, 66.25, -84.15),
    (2.5, 66.25, -111.15),
    (2.5, 91.75, -111.15),
    (2.5, 91.75, -84.15),
    (2.5, 91.75, -204.15),
    (2.5, 91.75, -231.15),
    (2.5, 66.25, -231.15),
    (2.5, 66.25, -204.15),
    (2.5, 66.25, -351.15),
    (2.5, 66.25, -324.15),
    (2.5, 91.75, -324.15),
    (2.5, 91.75, -351.15),
]))
fillet5.Radius = 0.5

sketch10 = body.newObject("Sketcher::SketchObject", "Sketch009")
sketch10.AttachmentSupport = (doc.getObject("YZ_Plane"), [""])
sketch10.MapMode = "FlatFace"
sketch10.AttachmentOffset = App.Placement(Vector(0, 0, 5), App.Rotation())
add_polygon(sketch10, [(105, -2), (105, 0), (53, 0), (53, -2)])
sketch10.addConstraint(Sketcher.Constraint("Vertical", 0))
sketch10.addConstraint(Sketcher.Constraint("Horizontal", 1))
sketch10.addConstraint(Sketcher.Constraint("Vertical", 2))
sketch10.addConstraint(Sketcher.Constraint("Horizontal", 3))
sketch10.addConstraint(Sketcher.Constraint("PointOnObject", 0, 2, -1))
sketch10.addConstraint(Sketcher.Constraint("DistanceY", 0, 1, 0, 2, Q("2 mm")))
sketch10.addConstraint(Sketcher.Constraint("DistanceX", 1, 2, 1, 1, Q("52 mm")))
sketch10.addConstraint(Sketcher.Constraint("DistanceX", -1, 1, 0, 2, Q("105 mm")))
pocket7 = body.newObject("PartDesign::Pocket", "Pocket006")
pocket7.Profile = sketch10
pocket7.Type = "ThroughAll"
doc.recompute()

fillet6 = body.newObject("PartDesign::Fillet", "Fillet005")
fillet6.Base = (pocket7, edges_at(pocket7, [(2.5, 105, -2), (2.5, 53, -2)]))
fillet6.Radius = 2

doc.recompute()
